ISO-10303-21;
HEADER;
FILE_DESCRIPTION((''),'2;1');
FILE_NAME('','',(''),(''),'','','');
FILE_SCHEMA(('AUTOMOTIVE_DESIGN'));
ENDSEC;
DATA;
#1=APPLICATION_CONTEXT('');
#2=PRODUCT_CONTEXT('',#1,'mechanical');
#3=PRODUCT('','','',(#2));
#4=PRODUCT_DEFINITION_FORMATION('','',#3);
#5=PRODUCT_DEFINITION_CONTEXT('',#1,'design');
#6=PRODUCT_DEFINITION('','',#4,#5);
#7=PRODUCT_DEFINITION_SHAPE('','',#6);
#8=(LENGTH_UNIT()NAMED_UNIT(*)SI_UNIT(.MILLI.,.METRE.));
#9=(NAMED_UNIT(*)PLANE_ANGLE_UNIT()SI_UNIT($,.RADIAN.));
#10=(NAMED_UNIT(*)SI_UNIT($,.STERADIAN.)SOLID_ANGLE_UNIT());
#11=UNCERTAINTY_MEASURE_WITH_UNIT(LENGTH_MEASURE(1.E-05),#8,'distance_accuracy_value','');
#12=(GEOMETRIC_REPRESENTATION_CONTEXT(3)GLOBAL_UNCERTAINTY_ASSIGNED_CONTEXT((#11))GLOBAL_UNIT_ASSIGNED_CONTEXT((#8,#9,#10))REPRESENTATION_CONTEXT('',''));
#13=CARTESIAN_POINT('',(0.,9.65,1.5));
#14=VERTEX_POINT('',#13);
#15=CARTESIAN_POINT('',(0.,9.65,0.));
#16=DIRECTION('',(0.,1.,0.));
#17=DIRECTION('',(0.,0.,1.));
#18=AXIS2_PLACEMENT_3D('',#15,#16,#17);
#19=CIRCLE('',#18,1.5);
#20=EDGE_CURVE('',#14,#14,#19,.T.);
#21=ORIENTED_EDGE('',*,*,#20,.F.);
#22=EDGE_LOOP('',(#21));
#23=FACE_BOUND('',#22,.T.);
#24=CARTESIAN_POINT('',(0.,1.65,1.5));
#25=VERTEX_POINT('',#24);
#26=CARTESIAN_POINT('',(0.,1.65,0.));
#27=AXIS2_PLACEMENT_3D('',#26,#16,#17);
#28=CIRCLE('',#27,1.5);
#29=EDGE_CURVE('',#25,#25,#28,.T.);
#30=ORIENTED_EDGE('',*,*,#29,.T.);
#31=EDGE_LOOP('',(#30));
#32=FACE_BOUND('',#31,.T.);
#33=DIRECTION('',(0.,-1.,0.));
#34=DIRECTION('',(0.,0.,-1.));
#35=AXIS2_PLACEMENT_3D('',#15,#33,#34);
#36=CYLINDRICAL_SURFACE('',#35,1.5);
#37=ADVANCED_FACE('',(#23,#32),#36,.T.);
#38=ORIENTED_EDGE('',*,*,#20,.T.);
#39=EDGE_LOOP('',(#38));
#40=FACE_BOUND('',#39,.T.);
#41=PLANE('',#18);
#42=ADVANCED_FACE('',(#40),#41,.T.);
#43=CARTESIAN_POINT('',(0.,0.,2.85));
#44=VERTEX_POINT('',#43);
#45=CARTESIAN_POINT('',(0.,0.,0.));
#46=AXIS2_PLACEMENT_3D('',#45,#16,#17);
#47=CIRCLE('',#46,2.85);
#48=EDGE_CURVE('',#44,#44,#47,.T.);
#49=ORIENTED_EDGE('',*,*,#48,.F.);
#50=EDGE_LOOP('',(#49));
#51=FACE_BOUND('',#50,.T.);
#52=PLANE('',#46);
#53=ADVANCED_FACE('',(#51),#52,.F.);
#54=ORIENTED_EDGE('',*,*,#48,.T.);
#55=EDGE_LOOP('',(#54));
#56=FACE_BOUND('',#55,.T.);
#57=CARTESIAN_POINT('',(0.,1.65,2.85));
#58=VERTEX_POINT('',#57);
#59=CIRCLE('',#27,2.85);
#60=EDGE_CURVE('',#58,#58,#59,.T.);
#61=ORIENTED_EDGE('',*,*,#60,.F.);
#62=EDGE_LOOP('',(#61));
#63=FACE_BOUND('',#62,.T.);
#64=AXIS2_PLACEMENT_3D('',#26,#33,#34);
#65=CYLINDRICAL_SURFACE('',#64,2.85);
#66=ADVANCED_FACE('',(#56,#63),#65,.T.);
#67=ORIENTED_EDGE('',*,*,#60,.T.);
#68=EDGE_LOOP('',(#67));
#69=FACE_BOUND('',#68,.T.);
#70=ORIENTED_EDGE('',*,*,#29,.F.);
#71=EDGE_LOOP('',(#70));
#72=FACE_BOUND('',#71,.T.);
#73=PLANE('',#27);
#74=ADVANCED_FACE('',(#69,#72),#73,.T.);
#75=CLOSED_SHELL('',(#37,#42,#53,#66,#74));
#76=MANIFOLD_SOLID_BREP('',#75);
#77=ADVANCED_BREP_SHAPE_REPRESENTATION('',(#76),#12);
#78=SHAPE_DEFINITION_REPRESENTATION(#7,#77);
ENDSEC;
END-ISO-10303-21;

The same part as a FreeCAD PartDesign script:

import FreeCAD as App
import Part
import Sketcher
from FreeCAD import Vector

doc = App.newDocument("Part")
body = doc.addObject("PartDesign::Body", "Body")

sketch1 = doc.addObject("Sketcher::SketchObject", "Sketch")
body.addObject(sketch1)
sketch1.AttachmentSupport = (doc.XZ_Plane, [""])
sketch1.MapMode = "FlatFace"
sketch1.addGeometry(Part.Circle(Vector(0, 0, 0), Vector(0, 0, 1), 2.85), False)
sketch1.addConstraint([
    Sketcher.Constraint("Coincident", 0, 3, -1, 1),
    Sketcher.Constraint("Diameter", 0, 5.7),
])
pad1 = doc.addObject("PartDesign::Pad", "Pad")
body.addObject(pad1)
pad1.Profile = sketch1
pad1.Length = 1.65
pad1.Reversed = True

sketch2 = doc.addObject("Sketcher::SketchObject", "Sketch001")
body.addObject(sketch2)
sketch2.AttachmentSupport = (doc.XZ_Plane, [""])
sketch2.MapMode = "FlatFace"
sketch2.AttachmentOffset = App.Placement(Vector(0, 0, -1.65), App.Rotation())
sketch2.addGeometry(Part.Circle(Vector(0, 0, 0), Vector(0, 0, 1), 1.5), False)
sketch2.addConstraint([
    Sketcher.Constraint("Coincident", 0, 3, -1, 1),
    Sketcher.Constraint("Diameter", 0, 3.0),
])
pad2 = doc.addObject("PartDesign::Pad", "Pad001")
body.addObject(pad2)
pad2.Profile = sketch2
pad2.Length = 8
pad2.Reversed = True

doc.recompute()
